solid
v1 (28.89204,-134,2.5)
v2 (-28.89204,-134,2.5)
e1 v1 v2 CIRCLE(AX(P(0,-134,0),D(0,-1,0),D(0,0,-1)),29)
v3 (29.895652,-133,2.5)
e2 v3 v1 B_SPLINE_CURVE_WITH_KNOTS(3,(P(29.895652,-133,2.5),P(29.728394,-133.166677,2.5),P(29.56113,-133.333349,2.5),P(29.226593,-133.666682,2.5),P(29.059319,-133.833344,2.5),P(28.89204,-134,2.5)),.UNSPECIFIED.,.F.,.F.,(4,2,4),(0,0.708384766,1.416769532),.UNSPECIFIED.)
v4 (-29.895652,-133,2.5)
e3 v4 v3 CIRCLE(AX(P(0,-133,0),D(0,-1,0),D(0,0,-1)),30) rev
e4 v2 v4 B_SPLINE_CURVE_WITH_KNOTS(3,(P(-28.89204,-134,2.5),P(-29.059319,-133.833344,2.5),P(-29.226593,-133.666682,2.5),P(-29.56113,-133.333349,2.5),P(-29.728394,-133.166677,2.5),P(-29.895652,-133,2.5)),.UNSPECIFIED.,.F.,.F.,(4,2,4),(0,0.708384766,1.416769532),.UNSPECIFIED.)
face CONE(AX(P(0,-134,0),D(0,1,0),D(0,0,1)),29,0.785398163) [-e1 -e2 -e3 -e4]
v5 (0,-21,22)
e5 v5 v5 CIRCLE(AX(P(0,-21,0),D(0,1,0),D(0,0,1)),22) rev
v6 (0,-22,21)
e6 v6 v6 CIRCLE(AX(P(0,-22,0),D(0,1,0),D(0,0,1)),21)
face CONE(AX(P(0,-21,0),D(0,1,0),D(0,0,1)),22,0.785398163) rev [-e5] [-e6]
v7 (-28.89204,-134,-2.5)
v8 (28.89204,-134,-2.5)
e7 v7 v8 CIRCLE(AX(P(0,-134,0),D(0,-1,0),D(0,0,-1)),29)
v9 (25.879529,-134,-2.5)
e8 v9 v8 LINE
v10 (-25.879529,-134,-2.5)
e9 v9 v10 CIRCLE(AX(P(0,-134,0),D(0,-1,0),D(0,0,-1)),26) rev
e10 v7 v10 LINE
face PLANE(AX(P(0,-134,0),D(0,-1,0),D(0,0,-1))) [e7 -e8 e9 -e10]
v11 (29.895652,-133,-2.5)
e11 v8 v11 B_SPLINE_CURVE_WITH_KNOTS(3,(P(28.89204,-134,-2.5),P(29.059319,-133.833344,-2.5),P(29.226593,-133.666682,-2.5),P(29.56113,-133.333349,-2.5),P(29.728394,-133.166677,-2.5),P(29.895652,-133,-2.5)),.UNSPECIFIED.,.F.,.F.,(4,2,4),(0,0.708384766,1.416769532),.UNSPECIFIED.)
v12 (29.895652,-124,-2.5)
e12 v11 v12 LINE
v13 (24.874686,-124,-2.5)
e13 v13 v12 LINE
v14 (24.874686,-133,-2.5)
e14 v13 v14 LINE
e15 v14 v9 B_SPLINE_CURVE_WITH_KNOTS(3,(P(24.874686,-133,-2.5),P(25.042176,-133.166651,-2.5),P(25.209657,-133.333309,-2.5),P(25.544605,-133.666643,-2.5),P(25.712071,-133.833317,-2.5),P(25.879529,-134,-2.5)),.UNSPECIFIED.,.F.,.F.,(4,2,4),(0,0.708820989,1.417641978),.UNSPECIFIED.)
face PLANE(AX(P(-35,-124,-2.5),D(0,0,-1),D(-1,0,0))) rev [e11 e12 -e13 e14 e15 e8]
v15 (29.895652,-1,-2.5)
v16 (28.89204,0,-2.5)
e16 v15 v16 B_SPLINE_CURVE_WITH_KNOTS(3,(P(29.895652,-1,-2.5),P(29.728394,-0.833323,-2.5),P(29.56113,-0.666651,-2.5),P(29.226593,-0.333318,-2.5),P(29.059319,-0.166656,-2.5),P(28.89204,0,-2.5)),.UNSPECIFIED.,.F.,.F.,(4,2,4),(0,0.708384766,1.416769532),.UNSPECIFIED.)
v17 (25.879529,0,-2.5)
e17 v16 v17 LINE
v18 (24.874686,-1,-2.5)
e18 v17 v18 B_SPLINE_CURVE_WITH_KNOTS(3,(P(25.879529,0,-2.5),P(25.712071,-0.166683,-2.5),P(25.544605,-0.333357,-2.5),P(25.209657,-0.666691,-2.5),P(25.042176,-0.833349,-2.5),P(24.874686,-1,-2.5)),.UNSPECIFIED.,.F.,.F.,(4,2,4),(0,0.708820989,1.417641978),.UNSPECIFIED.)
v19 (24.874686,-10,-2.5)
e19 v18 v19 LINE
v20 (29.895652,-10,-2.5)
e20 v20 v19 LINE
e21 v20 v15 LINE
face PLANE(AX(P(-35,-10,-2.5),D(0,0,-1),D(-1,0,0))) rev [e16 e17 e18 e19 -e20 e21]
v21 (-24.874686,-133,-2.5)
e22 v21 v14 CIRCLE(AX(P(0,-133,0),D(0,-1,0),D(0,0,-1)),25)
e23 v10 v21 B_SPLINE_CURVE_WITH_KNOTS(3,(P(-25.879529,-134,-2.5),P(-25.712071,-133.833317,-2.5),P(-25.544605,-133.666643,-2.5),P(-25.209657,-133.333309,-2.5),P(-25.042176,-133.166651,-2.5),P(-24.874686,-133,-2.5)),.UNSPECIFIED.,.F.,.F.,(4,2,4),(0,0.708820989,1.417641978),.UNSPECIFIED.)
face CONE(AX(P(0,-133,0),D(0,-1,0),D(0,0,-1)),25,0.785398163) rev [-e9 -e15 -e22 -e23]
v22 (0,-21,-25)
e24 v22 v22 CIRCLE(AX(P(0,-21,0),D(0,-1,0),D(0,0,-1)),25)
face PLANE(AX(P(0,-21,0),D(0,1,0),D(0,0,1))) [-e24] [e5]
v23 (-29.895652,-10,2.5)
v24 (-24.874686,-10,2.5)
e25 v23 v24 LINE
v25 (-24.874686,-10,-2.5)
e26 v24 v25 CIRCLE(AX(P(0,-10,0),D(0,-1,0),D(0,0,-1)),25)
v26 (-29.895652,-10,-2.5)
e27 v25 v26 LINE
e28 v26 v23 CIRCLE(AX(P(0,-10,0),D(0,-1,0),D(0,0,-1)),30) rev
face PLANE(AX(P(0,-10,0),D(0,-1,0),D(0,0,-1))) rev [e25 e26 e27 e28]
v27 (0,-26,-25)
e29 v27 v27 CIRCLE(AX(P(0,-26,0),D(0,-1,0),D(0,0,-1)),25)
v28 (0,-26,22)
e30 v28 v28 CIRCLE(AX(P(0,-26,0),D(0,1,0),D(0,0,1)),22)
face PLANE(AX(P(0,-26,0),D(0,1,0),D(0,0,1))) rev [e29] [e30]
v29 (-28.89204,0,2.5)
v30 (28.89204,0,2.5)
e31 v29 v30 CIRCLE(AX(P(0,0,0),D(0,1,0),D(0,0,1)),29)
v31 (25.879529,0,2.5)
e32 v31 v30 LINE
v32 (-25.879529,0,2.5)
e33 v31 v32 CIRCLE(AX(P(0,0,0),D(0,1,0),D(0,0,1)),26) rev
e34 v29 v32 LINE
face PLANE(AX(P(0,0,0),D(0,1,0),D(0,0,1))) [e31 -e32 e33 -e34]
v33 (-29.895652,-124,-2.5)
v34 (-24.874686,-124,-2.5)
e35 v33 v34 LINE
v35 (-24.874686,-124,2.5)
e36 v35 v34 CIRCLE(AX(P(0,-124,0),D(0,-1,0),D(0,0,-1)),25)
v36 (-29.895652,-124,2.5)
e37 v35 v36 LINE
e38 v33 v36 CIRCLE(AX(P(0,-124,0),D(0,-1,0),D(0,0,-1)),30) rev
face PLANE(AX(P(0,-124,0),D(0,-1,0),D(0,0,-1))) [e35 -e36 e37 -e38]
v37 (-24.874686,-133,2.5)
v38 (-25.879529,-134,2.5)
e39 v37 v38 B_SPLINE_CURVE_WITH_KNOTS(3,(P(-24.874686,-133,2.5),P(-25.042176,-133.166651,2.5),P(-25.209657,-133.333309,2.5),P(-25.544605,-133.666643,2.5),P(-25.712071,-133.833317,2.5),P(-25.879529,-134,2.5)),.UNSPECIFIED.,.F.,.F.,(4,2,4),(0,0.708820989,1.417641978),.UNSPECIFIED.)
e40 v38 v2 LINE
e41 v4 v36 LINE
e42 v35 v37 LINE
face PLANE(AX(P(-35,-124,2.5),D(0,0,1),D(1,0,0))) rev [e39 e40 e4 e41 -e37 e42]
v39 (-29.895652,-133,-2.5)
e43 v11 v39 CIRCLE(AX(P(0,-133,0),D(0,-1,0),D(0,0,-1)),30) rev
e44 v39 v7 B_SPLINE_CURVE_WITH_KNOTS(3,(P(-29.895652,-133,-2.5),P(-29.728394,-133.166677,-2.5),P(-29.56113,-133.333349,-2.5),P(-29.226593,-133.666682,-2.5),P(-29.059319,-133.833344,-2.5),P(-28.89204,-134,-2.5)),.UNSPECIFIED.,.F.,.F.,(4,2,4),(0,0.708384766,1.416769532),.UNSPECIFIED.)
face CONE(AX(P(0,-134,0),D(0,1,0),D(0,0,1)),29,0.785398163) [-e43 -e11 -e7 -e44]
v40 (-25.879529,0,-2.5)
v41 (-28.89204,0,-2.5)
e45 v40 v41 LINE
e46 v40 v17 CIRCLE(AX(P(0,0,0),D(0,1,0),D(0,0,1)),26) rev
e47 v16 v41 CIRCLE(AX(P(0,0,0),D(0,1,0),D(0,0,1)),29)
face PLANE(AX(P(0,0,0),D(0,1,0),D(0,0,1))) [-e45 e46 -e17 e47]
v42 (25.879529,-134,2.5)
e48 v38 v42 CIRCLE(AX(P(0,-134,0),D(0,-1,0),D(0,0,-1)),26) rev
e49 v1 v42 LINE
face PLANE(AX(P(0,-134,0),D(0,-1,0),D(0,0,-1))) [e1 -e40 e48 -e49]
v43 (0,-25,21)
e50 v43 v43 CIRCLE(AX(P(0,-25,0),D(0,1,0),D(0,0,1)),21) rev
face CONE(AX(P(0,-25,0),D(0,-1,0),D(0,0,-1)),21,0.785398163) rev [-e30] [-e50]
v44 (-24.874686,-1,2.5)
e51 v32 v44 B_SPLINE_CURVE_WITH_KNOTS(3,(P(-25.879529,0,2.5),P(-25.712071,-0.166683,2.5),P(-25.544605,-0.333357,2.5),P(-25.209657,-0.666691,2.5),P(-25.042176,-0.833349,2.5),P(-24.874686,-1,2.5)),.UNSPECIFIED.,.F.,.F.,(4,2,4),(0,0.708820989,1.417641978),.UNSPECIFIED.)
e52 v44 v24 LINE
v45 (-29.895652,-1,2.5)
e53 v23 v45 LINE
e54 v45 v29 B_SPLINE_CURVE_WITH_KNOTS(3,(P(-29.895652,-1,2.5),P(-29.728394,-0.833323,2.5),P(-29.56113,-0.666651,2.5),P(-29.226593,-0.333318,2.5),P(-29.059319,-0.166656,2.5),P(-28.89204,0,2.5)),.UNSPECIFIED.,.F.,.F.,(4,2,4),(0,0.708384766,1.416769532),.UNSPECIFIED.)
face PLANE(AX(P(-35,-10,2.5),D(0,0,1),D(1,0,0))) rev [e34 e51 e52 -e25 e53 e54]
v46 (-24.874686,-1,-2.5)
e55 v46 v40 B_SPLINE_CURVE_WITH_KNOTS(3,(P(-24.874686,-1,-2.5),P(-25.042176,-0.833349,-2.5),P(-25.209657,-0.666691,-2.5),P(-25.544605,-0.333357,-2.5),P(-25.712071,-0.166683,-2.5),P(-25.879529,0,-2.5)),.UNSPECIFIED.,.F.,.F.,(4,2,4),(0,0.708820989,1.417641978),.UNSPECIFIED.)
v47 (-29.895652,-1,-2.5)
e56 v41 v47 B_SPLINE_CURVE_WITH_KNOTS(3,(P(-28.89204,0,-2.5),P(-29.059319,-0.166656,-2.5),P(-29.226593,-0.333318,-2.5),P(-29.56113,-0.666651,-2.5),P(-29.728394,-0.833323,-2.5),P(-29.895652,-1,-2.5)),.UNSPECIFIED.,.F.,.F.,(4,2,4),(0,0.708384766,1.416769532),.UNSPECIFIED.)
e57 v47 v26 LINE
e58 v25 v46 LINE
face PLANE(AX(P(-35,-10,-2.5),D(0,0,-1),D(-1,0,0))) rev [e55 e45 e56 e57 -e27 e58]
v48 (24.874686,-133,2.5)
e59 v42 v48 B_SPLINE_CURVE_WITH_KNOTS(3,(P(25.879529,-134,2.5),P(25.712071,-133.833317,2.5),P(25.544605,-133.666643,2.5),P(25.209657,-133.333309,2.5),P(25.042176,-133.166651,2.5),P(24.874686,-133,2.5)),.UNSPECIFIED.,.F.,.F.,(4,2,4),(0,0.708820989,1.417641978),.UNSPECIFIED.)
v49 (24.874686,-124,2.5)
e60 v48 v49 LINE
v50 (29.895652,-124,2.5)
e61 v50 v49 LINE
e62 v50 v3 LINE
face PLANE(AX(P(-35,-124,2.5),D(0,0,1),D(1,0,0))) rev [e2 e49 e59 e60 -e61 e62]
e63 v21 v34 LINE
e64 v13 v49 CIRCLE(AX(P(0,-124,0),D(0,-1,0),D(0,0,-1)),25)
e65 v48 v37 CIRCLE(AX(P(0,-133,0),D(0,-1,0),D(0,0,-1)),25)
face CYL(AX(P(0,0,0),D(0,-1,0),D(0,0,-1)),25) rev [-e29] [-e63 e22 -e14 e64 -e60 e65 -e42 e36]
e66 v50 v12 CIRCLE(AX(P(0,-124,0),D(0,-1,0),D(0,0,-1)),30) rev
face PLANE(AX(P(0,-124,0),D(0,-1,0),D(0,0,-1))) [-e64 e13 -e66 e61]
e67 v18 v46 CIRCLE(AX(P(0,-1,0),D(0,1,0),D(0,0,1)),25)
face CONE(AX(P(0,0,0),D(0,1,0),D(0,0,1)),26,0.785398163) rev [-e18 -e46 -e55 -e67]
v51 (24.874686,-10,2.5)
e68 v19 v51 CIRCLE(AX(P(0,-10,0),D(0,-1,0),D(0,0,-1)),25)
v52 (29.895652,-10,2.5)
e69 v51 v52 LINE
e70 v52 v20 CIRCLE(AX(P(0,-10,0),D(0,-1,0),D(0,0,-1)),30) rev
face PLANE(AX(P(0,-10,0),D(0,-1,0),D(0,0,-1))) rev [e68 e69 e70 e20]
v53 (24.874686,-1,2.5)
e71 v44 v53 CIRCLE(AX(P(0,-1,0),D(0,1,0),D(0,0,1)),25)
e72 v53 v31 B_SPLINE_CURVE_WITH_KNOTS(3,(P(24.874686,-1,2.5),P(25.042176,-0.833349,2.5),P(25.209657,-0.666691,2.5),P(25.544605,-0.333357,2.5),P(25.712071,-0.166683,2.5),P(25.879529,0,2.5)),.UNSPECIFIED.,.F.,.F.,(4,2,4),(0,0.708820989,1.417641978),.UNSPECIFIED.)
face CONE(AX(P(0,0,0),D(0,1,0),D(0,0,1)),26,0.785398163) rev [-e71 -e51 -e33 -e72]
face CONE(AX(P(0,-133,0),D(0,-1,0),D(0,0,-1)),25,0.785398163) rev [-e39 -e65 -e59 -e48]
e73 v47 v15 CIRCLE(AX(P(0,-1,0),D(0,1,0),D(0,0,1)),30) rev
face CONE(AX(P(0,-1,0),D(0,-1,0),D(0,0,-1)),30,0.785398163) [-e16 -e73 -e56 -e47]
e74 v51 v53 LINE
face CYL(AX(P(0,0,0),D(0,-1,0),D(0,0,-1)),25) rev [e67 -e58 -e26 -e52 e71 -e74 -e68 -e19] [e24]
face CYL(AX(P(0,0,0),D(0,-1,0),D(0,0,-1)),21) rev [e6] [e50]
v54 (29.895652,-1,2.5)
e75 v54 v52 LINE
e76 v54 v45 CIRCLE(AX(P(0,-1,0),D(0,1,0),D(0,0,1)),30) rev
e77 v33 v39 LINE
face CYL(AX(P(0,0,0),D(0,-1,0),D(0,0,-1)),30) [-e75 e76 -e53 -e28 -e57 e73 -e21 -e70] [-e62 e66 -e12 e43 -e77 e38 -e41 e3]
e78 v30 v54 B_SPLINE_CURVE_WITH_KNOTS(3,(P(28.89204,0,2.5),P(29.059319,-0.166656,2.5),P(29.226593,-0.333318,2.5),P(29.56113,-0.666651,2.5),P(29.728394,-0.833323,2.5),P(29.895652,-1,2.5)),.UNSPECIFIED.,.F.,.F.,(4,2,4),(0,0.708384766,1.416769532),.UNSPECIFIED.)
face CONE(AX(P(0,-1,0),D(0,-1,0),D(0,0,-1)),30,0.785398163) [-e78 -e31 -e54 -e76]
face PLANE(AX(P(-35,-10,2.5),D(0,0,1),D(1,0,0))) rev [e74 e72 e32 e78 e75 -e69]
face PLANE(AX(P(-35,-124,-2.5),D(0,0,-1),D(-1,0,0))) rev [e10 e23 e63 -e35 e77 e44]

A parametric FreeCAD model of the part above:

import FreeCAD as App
import Part
import Sketcher

V = App.Vector
Q = App.Units.Quantity


def edges_at(feature, points):
    """Names of the edges that pass closest to the given points."""
    edges = feature.Shape.Edges
    near = lambda p: min(range(len(edges)), key=lambda i: edges[i].distToShape(Part.Vertex(*p))[0])
    return sorted({f"Edge{near(p) + 1}" for p in points})


def add_polygon(sketch, points):
    """Adds a closed chain of lines whose ends are joined by coincident constraints."""
    first, n = sketch.GeometryCount, len(points)
    for a, b in zip(points, points[1:] + points[:1]):
        sketch.addGeometry(Part.LineSegment(App.Vector(*a, 0), App.Vector(*b, 0)), False)
    for i in range(n):
        sketch.addConstraint(Sketcher.Constraint("Coincident", first + i, 2, first + (i + 1) % n, 1))

doc = App.newDocument("Part")
params = doc.addObject("Spreadsheet::Sheet", "Params")
for row, (alias, value) in enumerate([
    ("sketch1_width", "5 mm"),
    ("sketch1_width2", "4 mm"),
    ("sketch1_height", "134 mm"),
    ("sketch1_height2", "21 mm"),
    ("revolution_angle", "360 deg"),
    ("sketch2_width", "70 mm"),
    ("sketch2_height", "5 mm"),
    ("pocket1_length", "10 mm"),
    ("sketch3_width", "70 mm"),
    ("sketch3_height", "5 mm"),
    ("pocket2_length", "10 mm"),
    ("chamfer_size", "1 mm"),
], start=1):
    params.set(f"A{row}", alias)
    params.set(f"B{row}", "=" + value)
    params.setAlias(f"B{row}", alias)

body = doc.addObject("PartDesign::Body", "Body")

# Sketch on XY plane
sketch1 = body.newObject("Sketcher::SketchObject", "Sketch")
sketch1.AttachmentSupport = (doc.getObject("XY_Plane"), [""])
sketch1.MapMode = "FlatFace"
add_polygon(sketch1, [(25, -134), (30, -134), (30, 0), (25, 0), (25, -21), (21, -21), (21, -26), (25, -26)])  # lines 0-7
sketch1.addConstraint([
    Sketcher.Constraint("Horizontal", 0),
    Sketcher.Constraint("Vertical", 1),
    Sketcher.Constraint("Horizontal", 2),
    Sketcher.Constraint("Vertical", 3),
    Sketcher.Constraint("Horizontal", 4),
    Sketcher.Constraint("Vertical", 5),
    Sketcher.Constraint("Horizontal", 6),
    Sketcher.Constraint("Vertical", 7),
    Sketcher.Constraint("PointOnObject", 1, 2, -1),
    Sketcher.Constraint("Vertical", 3, 2, 6, 2),
    Sketcher.Constraint("Equal", 2, 5),
    Sketcher.Constraint("DistanceX", 0, 1, 0, 2, Q("5 mm")),
    Sketcher.Constraint("DistanceX", 4, 2, 4, 1, Q("4 mm")),
    Sketcher.Constraint("DistanceY", 1, 1, 1, 2, Q("134 mm")),
    Sketcher.Constraint("DistanceY", 3, 2, 3, 1, Q("21 mm")),
    Sketcher.Constraint("DistanceX", -1, 1, 0, 2, Q("30 mm")),
])
sketch1.setExpression("Constraints[19]", "Params.sketch1_width")
sketch1.setExpression("Constraints[20]", "Params.sketch1_width2")
sketch1.setExpression("Constraints[21]", "Params.sketch1_height")
sketch1.setExpression("Constraints[22]", "Params.sketch1_height2")
revolution = body.newObject("PartDesign::Revolution", "Revolution")
revolution.Profile = sketch1
revolution.ReferenceAxis = (sketch1, ["V_Axis"])
revolution.setExpression("Angle", "Params.revolution_angle")

# Sketch on XZ plane
sketch2 = body.newObject("Sketcher::SketchObject", "Sketch001")
sketch2.AttachmentSupport = (doc.getObject("XZ_Plane"), [""])
sketch2.MapMode = "FlatFace"
add_polygon(sketch2, [(-35, -2), (-35, 2), (35, 2), (35, -2)])  # lines 0-3
sketch2.addConstraint([
    Sketcher.Constraint("Vertical", 0),
    Sketcher.Constraint("Horizontal", 1),
    Sketcher.Constraint("Vertical", 2),
    Sketcher.Constraint("Horizontal", 3),
    Sketcher.Constraint("Symmetric", 0, 2, 2, 2, -1, 1),
    Sketcher.Constraint("DistanceX", 1, 1, 1, 2, Q("70 mm")),
    Sketcher.Constraint("DistanceY", 0, 1, 0, 2, Q("5 mm")),
])
sketch2.setExpression("Constraints[9]", "Params.sketch2_width")
sketch2.setExpression("Constraints[10]", "Params.sketch2_height")
pocket1 = body.newObject("PartDesign::Pocket", "Pocket")
pocket1.Profile = sketch2
pocket1.setExpression("Length", "Params.pocket1_length")
pocket1.Reversed = True

# Sketch on XZ plane
sketch3 = body.newObject("Sketcher::SketchObject", "Sketch002")
sketch3.AttachmentSupport = (doc.getObject("XZ_Plane"), [""])
sketch3.MapMode = "FlatFace"
sketch3.AttachmentOffset = App.Placement(V(0, 0, 134), App.Rotation())
add_polygon(sketch3, [(-35, 2), (-35, -2), (35, -2), (35, 2)])  # lines 0-3
sketch3.addConstraint([
    Sketcher.Constraint("Vertical", 0),
    Sketcher.Constraint("Horizontal", 1),
    Sketcher.Constraint("Vertical", 2),
    Sketcher.Constraint("Horizontal", 3),
    Sketcher.Constraint("Symmetric", 0, 2, 2, 2, -1, 1),
    Sketcher.Constraint("DistanceX", 1, 1, 1, 2, Q("70 mm")),
    Sketcher.Constraint("DistanceY", 0, 2, 0, 1, Q("5 mm")),
])
sketch3.setExpression("Constraints[9]", "Params.sketch3_width")
sketch3.setExpression("Constraints[10]", "Params.sketch3_height")
pocket2 = body.newObject("PartDesign::Pocket", "Pocket001")
pocket2.Profile = sketch3
pocket2.setExpression("Length", "Params.pocket2_length")
doc.recompute()

chamfer = body.newObject("PartDesign::Chamfer", "Chamfer")
chamfer.Base = (pocket2, edges_at(pocket2, [
    (-21, -26, 0),
    (-21, -21, 0),
    (0, 0, 25),
    (0, 0, -25),
    (0, 0, 30),
    (0, 0, -30),
    (0, -134, 30),
    (0, -134, -30),
    (0, -134, 25),
    (0, -134, -25),
]))
chamfer.setExpression("Size", "Params.chamfer_size")

doc.recompute()
